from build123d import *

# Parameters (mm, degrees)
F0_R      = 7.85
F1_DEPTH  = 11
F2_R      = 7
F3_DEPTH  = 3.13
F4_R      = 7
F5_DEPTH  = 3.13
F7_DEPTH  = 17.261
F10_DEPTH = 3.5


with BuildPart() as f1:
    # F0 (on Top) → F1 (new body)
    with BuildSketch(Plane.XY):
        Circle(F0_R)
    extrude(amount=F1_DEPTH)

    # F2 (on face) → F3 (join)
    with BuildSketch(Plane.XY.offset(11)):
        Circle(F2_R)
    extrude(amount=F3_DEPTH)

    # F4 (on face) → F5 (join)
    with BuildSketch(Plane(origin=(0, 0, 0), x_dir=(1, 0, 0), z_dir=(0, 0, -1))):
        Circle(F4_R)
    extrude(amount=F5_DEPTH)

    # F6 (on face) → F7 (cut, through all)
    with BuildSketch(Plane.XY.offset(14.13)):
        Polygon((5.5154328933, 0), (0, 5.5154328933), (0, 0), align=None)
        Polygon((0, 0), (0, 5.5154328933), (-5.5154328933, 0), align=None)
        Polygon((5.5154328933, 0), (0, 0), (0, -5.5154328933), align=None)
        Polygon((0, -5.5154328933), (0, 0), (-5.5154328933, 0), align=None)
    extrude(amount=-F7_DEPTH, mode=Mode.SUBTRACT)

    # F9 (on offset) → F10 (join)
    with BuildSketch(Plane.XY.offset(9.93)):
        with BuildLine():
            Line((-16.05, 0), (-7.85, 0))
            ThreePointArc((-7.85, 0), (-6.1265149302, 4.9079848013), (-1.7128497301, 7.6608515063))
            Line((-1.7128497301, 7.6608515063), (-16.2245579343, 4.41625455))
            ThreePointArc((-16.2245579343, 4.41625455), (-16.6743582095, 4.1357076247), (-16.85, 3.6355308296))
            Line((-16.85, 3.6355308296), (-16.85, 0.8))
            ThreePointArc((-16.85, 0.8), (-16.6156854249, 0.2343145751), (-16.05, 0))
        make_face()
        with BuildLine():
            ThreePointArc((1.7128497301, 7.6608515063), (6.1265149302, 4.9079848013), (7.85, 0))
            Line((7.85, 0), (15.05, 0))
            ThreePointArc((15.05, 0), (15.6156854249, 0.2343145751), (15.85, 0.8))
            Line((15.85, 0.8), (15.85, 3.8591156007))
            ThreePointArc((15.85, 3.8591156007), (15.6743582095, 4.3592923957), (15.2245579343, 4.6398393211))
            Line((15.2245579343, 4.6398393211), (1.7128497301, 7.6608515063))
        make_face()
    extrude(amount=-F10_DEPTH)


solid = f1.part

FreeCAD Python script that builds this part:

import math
import FreeCAD as App
import Part
import Sketcher
Q = App.Units.Quantity

doc = App.newDocument("Part")
body = doc.addObject("PartDesign::Body", "Body")

# Sketch on XY plane
sketch1 = body.newObject("Sketcher::SketchObject", "Sketch")
sketch1.AttachmentSupport = (doc.getObject("XY_Plane"), [""])
sketch1.MapMode = "FlatFace"
sketch1.addGeometry(Part.Circle(App.Vector(0, 0, 0), App.Vector(0, 0, 1), 8), False)
sketch1.addConstraint([
    Sketcher.Constraint("Coincident", 0, 3, -1, 1),
    Sketcher.Constraint("Diameter", 0, Q("15.7 mm")),
])
pad1 = body.newObject("PartDesign::Pad", "Pad")
pad1.Profile = sketch1
pad1.Length = 11

# Sketch on XY plane
sketch2 = body.newObject("Sketcher::SketchObject", "Sketch001")
sketch2.AttachmentSupport = (doc.getObject("XY_Plane"), [""])
sketch2.MapMode = "FlatFace"
sketch2.AttachmentOffset = App.Placement(App.Vector(0, 0, 11), App.Rotation())
sketch2.addGeometry(Part.Circle(App.Vector(0, 0, 0), App.Vector(0, 0, 1), 7), False)
sketch2.addConstraint([
    Sketcher.Constraint("Coincident", 0, 3, -1, 1),
    Sketcher.Constraint("Diameter", 0, Q("14 mm")),
])
pad2 = body.newObject("PartDesign::Pad", "Pad001")
pad2.Profile = sketch2
pad2.Length = 3.13

# Sketch on XY plane
sketch3 = body.newObject("Sketcher::SketchObject", "Sketch002")
sketch3.AttachmentSupport = (doc.getObject("XY_Plane"), [""])
sketch3.MapMode = "FlatFace"
sketch3.addGeometry(Part.Circle(App.Vector(0, 0, 0), App.Vector(0, 0, 1), 7), False)
sketch3.addConstraint([
    Sketcher.Constraint("Coincident", 0, 3, -1, 1),
    Sketcher.Constraint("Diameter", 0, Q("14 mm")),
])
pad3 = body.newObject("PartDesign::Pad", "Pad002")
pad3.Profile = sketch3
pad3.Length = 3.13
pad3.Reversed = True

# Sketch on XY plane
sketch4 = body.newObject("Sketcher::SketchObject", "Sketch003")
sketch4.AttachmentSupport = (doc.getObject("XY_Plane"), [""])
sketch4.MapMode = "FlatFace"
sketch4.AttachmentOffset = App.Placement(App.Vector(0, 0, 14.13), App.Rotation())
sketch4.addGeometry([
    Part.LineSegment(App.Vector(6, 0, 0), App.Vector(0, 6, 0)),
    Part.LineSegment(App.Vector(0, 6, 0), App.Vector(-6, 0, 0)),
    Part.LineSegment(App.Vector(-6, 0, 0), App.Vector(0, -6, 0)),
    Part.LineSegment(App.Vector(0, -6, 0), App.Vector(6, 0, 0)),
], False)
sketch4.addConstraint([
    Sketcher.Constraint("Coincident", 0, 2, 1, 1),
    Sketcher.Constraint("Coincident", 1, 2, 2, 1),
    Sketcher.Constraint("Coincident", 2, 2, 3, 1),
    Sketcher.Constraint("Coincident", 3, 2, 0, 1),
    Sketcher.Constraint("Symmetric", 0, 2, 2, 2, -1, 1),
    Sketcher.Constraint("Symmetric", 1, 2, 3, 2, -1, 1),
    Sketcher.Constraint("PointOnObject", 0, 2, -2),
    Sketcher.Constraint("PointOnObject", 1, 2, -1),
    Sketcher.Constraint("Perpendicular", 0, 1),
    Sketcher.Constraint("Distance", 0, Q("7.8 mm")),
])
pocket1 = body.newObject("PartDesign::Pocket", "Pocket")
pocket1.Profile = sketch4
pocket1.Type = "ThroughAll"

# Sketch on XY plane
sketch5 = body.newObject("Sketcher::SketchObject", "Sketch004")
sketch5.AttachmentSupport = (doc.getObject("XY_Plane"), [""])
sketch5.MapMode = "FlatFace"
sketch5.AttachmentOffset = App.Placement(App.Vector(0, 0, 9.93), App.Rotation())
sketch5.addGeometry([
    Part.LineSegment(App.Vector(-16.1, 0, 0), App.Vector(-7.8, 0, 0)),  # 0
    Part.ArcOfCircle(Part.Circle(App.Vector(0, 0, 0), App.Vector(0, 0, 1), 7.8), math.radians(103), math.radians(180)),  # 1
    Part.LineSegment(App.Vector(-1.7, 7.7, 0), App.Vector(-16.2, 4.4, 0)),  # 2
    Part.ArcOfCircle(Part.Circle(App.Vector(-16.1, 3.6, 0), App.Vector(0, 0, 1), 0.8), math.radians(103), math.radians(180)),  # 3
    Part.LineSegment(App.Vector(-16.9, 3.6, 0), App.Vector(-16.9, 0.8, 0)),  # 4
    Part.ArcOfCircle(Part.Circle(App.Vector(-16.1, 0.8, 0), App.Vector(0, 0, 1), 0.8), math.radians(180), math.radians(270)),  # 5
    Part.ArcOfCircle(Part.Circle(App.Vector(0, 0, 0), App.Vector(0, 0, 1), 7.8), math.radians(0), math.radians(77)),  # 6
    Part.LineSegment(App.Vector(7.8, 0, 0), App.Vector(15.1, 0, 0)),  # 7
    Part.ArcOfCircle(Part.Circle(App.Vector(15.1, 0.8, 0), App.Vector(0, 0, 1), 0.8), math.radians(-90), math.radians(0)),  # 8
    Part.LineSegment(App.Vector(15.8, 0.8, 0), App.Vector(15.8, 3.9, 0)),  # 9
    Part.ArcOfCircle(Part.Circle(App.Vector(15.1, 3.9, 0), App.Vector(0, 0, 1), 0.8), math.radians(0), math.radians(77)),  # 10
    Part.LineSegment(App.Vector(15.2, 4.6, 0), App.Vector(1.7, 7.7, 0)),  # 11
], False)
sketch5.addConstraint([
    Sketcher.Constraint("Coincident", 0, 2, 1, 2),
    Sketcher.Constraint("Tangent", 1, 1, 2, 1),
    Sketcher.Constraint("Tangent", 2, 2, 3, 1),
    Sketcher.Constraint("Tangent", 3, 2, 4, 1),
    Sketcher.Constraint("Tangent", 4, 2, 5, 1),
    Sketcher.Constraint("Tangent", 5, 2, 0, 1),
    Sketcher.Constraint("Coincident", 6, 1, 7, 1),
    Sketcher.Constraint("Tangent", 7, 2, 8, 1),
    Sketcher.Constraint("Tangent", 8, 2, 9, 1),
    Sketcher.Constraint("Tangent", 9, 2, 10, 1),
    Sketcher.Constraint("Tangent", 10, 2, 11, 1),
    Sketcher.Constraint("Tangent", 11, 2, 6, 2),
    Sketcher.Constraint("Horizontal", 0),
    Sketcher.Constraint("Vertical", 4),
    Sketcher.Constraint("Horizontal", 7),
    Sketcher.Constraint("Vertical", 9),
    Sketcher.Constraint("Coincident", 1, 3, -1, 1),
    Sketcher.Constraint("Coincident", 6, 3, -1, 1),
    Sketcher.Constraint("Equal", 3, 5),
    Sketcher.Constraint("Equal", 1, 6),
    Sketcher.Constraint("Equal", 5, 8),
    Sketcher.Constraint("Equal", 8, 10),
    Sketcher.Constraint("PointOnObject", 0, 2, -1),
    Sketcher.Constraint("PointOnObject", 6, 1, -1),
    Sketcher.Constraint("Horizontal", 1, 1, 11, 2),
    Sketcher.Constraint("Radius", 3, Q("0.8 mm")),
    Sketcher.Constraint("Radius", 1, Q("7.85 mm")),
    Sketcher.Constraint("DistanceX", 0, 1, 0, 2, Q("8.2 mm")),
    Sketcher.Constraint("DistanceX", 7, 1, 7, 2, Q("7.2 mm")),
    Sketcher.Constraint("DistanceY", 4, 2, 4, 1, Q("2.835531 mm")),
])
pad4 = body.newObject("PartDesign::Pad", "Pad003")
pad4.Profile = sketch5
pad4.Length = 3.5
pad4.Reversed = True

doc.recompute()
